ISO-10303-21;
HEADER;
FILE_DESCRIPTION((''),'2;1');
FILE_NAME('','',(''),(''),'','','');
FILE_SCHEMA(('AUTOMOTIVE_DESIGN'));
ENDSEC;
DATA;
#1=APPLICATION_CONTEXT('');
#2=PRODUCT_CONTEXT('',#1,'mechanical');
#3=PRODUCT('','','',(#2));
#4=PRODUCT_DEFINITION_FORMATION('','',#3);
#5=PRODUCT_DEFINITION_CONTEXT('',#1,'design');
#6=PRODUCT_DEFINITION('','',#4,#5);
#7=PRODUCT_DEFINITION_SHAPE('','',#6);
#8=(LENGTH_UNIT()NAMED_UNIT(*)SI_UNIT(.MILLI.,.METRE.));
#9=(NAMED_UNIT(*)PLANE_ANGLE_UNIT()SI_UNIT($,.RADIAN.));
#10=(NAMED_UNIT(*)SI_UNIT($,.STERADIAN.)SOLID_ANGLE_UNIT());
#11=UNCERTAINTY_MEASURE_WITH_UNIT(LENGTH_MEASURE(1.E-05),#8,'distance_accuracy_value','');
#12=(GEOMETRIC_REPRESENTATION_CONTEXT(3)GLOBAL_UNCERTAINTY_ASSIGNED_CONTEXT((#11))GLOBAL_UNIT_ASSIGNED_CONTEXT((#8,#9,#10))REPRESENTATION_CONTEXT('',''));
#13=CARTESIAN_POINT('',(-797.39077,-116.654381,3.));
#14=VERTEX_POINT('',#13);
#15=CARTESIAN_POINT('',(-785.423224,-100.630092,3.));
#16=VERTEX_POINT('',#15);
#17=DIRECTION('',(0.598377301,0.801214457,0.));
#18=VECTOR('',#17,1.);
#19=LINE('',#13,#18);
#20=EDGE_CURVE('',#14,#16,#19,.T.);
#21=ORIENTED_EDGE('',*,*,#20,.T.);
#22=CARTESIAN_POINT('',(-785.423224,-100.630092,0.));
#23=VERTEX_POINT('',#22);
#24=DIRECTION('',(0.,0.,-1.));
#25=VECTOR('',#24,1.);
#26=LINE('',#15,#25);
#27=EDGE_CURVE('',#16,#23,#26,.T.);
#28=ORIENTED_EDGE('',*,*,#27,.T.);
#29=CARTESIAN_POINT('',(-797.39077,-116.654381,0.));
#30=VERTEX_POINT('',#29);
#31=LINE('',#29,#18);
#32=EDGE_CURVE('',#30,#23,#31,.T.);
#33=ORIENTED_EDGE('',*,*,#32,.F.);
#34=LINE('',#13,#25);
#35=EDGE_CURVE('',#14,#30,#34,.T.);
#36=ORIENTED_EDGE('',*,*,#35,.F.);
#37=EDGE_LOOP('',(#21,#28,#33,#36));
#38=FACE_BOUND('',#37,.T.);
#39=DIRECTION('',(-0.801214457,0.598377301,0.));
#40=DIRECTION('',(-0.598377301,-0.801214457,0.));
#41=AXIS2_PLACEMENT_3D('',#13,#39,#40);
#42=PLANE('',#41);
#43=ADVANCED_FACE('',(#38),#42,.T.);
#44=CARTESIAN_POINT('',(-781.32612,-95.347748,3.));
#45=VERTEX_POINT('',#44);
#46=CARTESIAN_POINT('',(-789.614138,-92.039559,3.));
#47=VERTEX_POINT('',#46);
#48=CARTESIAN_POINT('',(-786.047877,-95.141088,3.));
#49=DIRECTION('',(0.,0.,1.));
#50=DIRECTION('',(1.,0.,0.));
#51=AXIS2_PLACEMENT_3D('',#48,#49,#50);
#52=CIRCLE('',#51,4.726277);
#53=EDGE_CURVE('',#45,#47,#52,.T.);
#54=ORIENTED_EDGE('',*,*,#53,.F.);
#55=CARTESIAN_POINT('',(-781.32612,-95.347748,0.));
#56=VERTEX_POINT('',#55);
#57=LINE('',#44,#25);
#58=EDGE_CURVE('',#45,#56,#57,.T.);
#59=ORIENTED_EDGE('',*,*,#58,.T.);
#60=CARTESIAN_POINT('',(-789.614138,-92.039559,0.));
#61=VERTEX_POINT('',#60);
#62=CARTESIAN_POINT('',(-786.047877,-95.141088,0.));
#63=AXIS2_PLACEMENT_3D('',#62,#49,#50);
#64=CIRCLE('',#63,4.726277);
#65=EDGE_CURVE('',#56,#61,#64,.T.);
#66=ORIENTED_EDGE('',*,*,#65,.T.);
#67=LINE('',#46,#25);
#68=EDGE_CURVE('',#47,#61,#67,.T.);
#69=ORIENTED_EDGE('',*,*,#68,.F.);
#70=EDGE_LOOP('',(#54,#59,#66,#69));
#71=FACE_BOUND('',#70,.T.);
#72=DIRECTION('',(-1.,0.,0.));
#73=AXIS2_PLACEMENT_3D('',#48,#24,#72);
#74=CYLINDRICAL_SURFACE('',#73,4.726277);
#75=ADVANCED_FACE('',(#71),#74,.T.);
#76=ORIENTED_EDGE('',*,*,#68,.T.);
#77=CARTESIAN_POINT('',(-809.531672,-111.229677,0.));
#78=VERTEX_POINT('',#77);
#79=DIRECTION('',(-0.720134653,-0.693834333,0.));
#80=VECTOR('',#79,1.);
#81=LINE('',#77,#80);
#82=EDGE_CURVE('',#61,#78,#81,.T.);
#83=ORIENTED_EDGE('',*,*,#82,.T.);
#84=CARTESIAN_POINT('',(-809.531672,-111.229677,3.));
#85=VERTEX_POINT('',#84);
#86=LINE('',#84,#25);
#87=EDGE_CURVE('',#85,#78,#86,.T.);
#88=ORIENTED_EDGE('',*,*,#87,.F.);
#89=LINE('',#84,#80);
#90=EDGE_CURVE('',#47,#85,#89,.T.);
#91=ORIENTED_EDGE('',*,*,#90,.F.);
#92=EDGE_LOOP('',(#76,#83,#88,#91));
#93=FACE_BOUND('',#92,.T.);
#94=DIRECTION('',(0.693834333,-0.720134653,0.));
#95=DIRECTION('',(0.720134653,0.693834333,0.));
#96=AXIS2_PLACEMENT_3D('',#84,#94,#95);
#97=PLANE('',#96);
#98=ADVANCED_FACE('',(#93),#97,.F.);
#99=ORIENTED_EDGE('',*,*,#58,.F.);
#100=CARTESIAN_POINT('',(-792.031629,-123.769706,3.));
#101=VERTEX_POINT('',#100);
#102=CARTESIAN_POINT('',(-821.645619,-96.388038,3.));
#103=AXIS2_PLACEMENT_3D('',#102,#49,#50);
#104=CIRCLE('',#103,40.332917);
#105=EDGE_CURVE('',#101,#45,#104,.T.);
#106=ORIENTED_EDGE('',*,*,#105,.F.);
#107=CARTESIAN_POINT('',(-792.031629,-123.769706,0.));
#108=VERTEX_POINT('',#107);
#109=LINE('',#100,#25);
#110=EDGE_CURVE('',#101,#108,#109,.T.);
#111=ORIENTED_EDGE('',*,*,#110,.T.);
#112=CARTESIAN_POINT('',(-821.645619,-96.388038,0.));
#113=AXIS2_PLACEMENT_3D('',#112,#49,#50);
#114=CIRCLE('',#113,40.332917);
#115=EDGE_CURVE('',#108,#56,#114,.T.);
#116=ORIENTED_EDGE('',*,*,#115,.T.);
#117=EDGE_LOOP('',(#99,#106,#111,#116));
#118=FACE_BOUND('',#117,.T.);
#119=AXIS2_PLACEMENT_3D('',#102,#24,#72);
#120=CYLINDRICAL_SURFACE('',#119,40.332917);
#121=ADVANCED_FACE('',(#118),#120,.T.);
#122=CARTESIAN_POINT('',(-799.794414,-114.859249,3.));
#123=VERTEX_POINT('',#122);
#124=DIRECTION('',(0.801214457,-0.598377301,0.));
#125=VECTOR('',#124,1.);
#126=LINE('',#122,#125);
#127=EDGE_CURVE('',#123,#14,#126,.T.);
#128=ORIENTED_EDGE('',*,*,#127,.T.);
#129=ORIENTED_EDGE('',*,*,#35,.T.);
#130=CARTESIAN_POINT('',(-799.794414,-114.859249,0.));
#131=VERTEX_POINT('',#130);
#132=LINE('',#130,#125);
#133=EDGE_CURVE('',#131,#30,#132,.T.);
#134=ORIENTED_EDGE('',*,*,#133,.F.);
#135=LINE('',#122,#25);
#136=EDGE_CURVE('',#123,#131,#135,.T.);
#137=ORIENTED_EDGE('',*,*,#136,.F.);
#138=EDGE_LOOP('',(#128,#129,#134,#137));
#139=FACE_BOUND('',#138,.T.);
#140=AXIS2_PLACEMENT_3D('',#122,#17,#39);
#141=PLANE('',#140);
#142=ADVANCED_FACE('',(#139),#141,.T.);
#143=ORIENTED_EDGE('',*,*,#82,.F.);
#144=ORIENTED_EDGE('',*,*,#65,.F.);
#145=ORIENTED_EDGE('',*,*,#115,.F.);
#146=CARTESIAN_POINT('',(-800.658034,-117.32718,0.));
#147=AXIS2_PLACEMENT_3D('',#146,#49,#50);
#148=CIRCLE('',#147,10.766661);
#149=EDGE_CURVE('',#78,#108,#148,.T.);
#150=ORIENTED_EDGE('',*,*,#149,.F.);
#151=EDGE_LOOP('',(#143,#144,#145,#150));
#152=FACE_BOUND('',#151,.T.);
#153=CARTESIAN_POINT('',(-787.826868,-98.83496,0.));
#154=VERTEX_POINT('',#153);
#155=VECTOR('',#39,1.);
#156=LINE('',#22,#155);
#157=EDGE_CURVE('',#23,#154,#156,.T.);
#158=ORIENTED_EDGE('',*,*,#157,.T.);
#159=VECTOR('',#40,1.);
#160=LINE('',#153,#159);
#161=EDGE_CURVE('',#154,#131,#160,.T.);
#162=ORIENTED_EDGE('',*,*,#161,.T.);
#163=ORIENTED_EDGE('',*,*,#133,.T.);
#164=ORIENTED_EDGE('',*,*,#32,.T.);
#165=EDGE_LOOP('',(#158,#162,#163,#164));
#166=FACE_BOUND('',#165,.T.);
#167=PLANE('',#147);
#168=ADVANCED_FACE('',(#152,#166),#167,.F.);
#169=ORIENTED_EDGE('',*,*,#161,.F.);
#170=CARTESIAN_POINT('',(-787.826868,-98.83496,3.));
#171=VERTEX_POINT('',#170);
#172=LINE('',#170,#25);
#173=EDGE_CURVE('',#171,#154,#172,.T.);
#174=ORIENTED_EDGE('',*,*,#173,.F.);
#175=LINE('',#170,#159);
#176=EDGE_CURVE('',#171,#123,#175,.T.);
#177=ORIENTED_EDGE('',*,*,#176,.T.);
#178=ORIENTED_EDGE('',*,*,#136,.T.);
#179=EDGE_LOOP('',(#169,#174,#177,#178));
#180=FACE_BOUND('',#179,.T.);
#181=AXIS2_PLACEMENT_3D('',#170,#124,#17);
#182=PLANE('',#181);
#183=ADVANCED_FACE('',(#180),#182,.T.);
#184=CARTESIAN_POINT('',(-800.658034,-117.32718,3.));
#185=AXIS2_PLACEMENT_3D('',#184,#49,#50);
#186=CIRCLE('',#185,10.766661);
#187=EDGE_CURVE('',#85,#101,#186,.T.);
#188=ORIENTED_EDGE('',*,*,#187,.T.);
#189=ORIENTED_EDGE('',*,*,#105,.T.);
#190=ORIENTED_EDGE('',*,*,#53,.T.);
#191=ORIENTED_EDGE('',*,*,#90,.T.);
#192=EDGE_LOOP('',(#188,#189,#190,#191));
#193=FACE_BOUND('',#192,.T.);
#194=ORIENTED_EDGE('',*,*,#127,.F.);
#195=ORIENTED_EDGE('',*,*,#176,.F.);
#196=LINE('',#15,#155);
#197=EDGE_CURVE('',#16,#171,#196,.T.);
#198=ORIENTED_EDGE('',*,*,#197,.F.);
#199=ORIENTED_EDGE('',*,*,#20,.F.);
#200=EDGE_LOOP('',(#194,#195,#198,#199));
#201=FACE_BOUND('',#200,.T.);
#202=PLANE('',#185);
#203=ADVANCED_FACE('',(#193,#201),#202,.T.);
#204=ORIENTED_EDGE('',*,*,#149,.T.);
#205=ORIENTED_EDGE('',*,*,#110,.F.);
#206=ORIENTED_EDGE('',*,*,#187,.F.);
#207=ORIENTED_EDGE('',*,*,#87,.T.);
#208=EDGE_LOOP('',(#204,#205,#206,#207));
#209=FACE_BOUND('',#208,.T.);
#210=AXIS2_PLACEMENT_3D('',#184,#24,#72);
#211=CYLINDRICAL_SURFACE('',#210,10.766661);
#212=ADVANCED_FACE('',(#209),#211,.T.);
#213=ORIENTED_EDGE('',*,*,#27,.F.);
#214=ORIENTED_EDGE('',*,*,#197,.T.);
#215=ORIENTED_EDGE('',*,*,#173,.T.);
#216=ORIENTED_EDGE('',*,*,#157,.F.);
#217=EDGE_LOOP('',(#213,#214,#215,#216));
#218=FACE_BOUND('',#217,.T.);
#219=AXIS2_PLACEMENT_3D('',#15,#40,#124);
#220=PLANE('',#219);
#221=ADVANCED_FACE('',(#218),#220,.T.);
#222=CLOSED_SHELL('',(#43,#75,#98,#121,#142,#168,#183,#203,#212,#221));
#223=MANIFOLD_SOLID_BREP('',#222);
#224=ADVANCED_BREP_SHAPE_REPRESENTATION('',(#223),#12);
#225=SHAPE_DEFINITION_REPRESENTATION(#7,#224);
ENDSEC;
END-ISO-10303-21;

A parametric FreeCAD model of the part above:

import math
import FreeCAD as App
import Part
import Sketcher
from FreeCAD import Vector


def add_polygon(sketch, points):
    """Adds a closed chain of lines whose ends are joined by coincident constraints."""
    first, n = sketch.GeometryCount, len(points)
    for a, b in zip(points, points[1:] + points[:1]):
        sketch.addGeometry(Part.LineSegment(App.Vector(*a, 0), App.Vector(*b, 0)), False)
    for i in range(n):
        sketch.addConstraint(Sketcher.Constraint("Coincident", first + i, 2, first + (i + 1) % n, 1))

doc = App.newDocument("Part")
body = doc.addObject("PartDesign::Body", "Body")

# Sketch on XY plane
sketch1 = body.newObject("Sketcher::SketchObject", "Sketch")
sketch1.AttachmentSupport = (doc.getObject("XY_Plane"), [""])
sketch1.MapMode = "FlatFace"
sketch1.addGeometry(Part.LineSegment(Vector(-789.6, -92, 0), Vector(-809.5, -111.2, 0)), False)  # 0
sketch1.addGeometry(Part.ArcOfCircle(Part.Circle(Vector(-800.7, -117.3, 0), Vector(0, 0, 1), 10.8), math.radians(146), math.radians(323)), False)  # 1
sketch1.addGeometry(Part.ArcOfCircle(Part.Circle(Vector(-821.6, -96.4, 0), Vector(0, 0, 1), 40.3), math.radians(-43), math.radians(1)), False)  # 2
sketch1.addGeometry(Part.ArcOfCircle(Part.Circle(Vector(-786, -95.1, 0), Vector(0, 0, 1), 4.7), math.radians(-3), math.radians(139)), False)  # 3
add_polygon(sketch1, [(-797.4, -116.7), (-799.8, -114.9), (-787.8, -98.8), (-785.4, -100.6)])  # lines 4-7
sketch1.addConstraint(Sketcher.Constraint("Coincident", 0, 2, 1, 1))
sketch1.addConstraint(Sketcher.Constraint("Coincident", 1, 2, 2, 1))
sketch1.addConstraint(Sketcher.Constraint("Coincident", 2, 2, 3, 1))
sketch1.addConstraint(Sketcher.Constraint("Coincident", 3, 2, 0, 1))
sketch1.addConstraint(Sketcher.Constraint("Perpendicular", 4, 5))
sketch1.addConstraint(Sketcher.Constraint("Perpendicular", 5, 6))
sketch1.addConstraint(Sketcher.Constraint("Perpendicular", 6, 7))
sketch1.addConstraint(Sketcher.Constraint("Distance", 4, 3.0))
sketch1.addConstraint(Sketcher.Constraint("Distance", 5, 20.0))
sketch1.addConstraint(Sketcher.Constraint("Radius", 1, 10.766661))
sketch1.addConstraint(Sketcher.Constraint("Radius", 2, 40.332917))
sketch1.addConstraint(Sketcher.Constraint("Radius", 3, 4.726277))
sketch1.addConstraint(Sketcher.Constraint("DistanceX", 2, 3, 2, 2, 40.319499))
sketch1.addConstraint(Sketcher.Constraint("DistanceY", 5, 2, 3, 2, 6.795401))
sketch1.addConstraint(Sketcher.Constraint("DistanceY", 1, 3, 7, 2, 0.672799))
sketch1.addConstraint(Sketcher.Constraint("DistanceX", 0, 2, 7, 2, 12.140901))
sketch1.addConstraint(Sketcher.Constraint("Distance", 0, 27.658069))
sketch1.addConstraint(Sketcher.Constraint("DistanceY", 1, 3, -1, 1, 117.32718))
sketch1.addConstraint(Sketcher.Constraint("DistanceX", 2, 3, -1, 1, 821.645619))
sketch1.addConstraint(Sketcher.Constraint("DistanceX", 0, 2, -1, 1, 809.531672))
sketch1.addConstraint(Sketcher.Constraint("DistanceX", 1, 2, -1, 1, 792.031629))
sketch1.addConstraint(Sketcher.Constraint("DistanceY", 2, 2, -1, 1, 95.347748))
sketch1.addConstraint(Sketcher.Constraint("DistanceX", 3, 2, -1, 1, 789.614138))
pad1 = body.newObject("PartDesign::Pad", "Pad")
pad1.Profile = sketch1
pad1.Length = 3

doc.recompute()
